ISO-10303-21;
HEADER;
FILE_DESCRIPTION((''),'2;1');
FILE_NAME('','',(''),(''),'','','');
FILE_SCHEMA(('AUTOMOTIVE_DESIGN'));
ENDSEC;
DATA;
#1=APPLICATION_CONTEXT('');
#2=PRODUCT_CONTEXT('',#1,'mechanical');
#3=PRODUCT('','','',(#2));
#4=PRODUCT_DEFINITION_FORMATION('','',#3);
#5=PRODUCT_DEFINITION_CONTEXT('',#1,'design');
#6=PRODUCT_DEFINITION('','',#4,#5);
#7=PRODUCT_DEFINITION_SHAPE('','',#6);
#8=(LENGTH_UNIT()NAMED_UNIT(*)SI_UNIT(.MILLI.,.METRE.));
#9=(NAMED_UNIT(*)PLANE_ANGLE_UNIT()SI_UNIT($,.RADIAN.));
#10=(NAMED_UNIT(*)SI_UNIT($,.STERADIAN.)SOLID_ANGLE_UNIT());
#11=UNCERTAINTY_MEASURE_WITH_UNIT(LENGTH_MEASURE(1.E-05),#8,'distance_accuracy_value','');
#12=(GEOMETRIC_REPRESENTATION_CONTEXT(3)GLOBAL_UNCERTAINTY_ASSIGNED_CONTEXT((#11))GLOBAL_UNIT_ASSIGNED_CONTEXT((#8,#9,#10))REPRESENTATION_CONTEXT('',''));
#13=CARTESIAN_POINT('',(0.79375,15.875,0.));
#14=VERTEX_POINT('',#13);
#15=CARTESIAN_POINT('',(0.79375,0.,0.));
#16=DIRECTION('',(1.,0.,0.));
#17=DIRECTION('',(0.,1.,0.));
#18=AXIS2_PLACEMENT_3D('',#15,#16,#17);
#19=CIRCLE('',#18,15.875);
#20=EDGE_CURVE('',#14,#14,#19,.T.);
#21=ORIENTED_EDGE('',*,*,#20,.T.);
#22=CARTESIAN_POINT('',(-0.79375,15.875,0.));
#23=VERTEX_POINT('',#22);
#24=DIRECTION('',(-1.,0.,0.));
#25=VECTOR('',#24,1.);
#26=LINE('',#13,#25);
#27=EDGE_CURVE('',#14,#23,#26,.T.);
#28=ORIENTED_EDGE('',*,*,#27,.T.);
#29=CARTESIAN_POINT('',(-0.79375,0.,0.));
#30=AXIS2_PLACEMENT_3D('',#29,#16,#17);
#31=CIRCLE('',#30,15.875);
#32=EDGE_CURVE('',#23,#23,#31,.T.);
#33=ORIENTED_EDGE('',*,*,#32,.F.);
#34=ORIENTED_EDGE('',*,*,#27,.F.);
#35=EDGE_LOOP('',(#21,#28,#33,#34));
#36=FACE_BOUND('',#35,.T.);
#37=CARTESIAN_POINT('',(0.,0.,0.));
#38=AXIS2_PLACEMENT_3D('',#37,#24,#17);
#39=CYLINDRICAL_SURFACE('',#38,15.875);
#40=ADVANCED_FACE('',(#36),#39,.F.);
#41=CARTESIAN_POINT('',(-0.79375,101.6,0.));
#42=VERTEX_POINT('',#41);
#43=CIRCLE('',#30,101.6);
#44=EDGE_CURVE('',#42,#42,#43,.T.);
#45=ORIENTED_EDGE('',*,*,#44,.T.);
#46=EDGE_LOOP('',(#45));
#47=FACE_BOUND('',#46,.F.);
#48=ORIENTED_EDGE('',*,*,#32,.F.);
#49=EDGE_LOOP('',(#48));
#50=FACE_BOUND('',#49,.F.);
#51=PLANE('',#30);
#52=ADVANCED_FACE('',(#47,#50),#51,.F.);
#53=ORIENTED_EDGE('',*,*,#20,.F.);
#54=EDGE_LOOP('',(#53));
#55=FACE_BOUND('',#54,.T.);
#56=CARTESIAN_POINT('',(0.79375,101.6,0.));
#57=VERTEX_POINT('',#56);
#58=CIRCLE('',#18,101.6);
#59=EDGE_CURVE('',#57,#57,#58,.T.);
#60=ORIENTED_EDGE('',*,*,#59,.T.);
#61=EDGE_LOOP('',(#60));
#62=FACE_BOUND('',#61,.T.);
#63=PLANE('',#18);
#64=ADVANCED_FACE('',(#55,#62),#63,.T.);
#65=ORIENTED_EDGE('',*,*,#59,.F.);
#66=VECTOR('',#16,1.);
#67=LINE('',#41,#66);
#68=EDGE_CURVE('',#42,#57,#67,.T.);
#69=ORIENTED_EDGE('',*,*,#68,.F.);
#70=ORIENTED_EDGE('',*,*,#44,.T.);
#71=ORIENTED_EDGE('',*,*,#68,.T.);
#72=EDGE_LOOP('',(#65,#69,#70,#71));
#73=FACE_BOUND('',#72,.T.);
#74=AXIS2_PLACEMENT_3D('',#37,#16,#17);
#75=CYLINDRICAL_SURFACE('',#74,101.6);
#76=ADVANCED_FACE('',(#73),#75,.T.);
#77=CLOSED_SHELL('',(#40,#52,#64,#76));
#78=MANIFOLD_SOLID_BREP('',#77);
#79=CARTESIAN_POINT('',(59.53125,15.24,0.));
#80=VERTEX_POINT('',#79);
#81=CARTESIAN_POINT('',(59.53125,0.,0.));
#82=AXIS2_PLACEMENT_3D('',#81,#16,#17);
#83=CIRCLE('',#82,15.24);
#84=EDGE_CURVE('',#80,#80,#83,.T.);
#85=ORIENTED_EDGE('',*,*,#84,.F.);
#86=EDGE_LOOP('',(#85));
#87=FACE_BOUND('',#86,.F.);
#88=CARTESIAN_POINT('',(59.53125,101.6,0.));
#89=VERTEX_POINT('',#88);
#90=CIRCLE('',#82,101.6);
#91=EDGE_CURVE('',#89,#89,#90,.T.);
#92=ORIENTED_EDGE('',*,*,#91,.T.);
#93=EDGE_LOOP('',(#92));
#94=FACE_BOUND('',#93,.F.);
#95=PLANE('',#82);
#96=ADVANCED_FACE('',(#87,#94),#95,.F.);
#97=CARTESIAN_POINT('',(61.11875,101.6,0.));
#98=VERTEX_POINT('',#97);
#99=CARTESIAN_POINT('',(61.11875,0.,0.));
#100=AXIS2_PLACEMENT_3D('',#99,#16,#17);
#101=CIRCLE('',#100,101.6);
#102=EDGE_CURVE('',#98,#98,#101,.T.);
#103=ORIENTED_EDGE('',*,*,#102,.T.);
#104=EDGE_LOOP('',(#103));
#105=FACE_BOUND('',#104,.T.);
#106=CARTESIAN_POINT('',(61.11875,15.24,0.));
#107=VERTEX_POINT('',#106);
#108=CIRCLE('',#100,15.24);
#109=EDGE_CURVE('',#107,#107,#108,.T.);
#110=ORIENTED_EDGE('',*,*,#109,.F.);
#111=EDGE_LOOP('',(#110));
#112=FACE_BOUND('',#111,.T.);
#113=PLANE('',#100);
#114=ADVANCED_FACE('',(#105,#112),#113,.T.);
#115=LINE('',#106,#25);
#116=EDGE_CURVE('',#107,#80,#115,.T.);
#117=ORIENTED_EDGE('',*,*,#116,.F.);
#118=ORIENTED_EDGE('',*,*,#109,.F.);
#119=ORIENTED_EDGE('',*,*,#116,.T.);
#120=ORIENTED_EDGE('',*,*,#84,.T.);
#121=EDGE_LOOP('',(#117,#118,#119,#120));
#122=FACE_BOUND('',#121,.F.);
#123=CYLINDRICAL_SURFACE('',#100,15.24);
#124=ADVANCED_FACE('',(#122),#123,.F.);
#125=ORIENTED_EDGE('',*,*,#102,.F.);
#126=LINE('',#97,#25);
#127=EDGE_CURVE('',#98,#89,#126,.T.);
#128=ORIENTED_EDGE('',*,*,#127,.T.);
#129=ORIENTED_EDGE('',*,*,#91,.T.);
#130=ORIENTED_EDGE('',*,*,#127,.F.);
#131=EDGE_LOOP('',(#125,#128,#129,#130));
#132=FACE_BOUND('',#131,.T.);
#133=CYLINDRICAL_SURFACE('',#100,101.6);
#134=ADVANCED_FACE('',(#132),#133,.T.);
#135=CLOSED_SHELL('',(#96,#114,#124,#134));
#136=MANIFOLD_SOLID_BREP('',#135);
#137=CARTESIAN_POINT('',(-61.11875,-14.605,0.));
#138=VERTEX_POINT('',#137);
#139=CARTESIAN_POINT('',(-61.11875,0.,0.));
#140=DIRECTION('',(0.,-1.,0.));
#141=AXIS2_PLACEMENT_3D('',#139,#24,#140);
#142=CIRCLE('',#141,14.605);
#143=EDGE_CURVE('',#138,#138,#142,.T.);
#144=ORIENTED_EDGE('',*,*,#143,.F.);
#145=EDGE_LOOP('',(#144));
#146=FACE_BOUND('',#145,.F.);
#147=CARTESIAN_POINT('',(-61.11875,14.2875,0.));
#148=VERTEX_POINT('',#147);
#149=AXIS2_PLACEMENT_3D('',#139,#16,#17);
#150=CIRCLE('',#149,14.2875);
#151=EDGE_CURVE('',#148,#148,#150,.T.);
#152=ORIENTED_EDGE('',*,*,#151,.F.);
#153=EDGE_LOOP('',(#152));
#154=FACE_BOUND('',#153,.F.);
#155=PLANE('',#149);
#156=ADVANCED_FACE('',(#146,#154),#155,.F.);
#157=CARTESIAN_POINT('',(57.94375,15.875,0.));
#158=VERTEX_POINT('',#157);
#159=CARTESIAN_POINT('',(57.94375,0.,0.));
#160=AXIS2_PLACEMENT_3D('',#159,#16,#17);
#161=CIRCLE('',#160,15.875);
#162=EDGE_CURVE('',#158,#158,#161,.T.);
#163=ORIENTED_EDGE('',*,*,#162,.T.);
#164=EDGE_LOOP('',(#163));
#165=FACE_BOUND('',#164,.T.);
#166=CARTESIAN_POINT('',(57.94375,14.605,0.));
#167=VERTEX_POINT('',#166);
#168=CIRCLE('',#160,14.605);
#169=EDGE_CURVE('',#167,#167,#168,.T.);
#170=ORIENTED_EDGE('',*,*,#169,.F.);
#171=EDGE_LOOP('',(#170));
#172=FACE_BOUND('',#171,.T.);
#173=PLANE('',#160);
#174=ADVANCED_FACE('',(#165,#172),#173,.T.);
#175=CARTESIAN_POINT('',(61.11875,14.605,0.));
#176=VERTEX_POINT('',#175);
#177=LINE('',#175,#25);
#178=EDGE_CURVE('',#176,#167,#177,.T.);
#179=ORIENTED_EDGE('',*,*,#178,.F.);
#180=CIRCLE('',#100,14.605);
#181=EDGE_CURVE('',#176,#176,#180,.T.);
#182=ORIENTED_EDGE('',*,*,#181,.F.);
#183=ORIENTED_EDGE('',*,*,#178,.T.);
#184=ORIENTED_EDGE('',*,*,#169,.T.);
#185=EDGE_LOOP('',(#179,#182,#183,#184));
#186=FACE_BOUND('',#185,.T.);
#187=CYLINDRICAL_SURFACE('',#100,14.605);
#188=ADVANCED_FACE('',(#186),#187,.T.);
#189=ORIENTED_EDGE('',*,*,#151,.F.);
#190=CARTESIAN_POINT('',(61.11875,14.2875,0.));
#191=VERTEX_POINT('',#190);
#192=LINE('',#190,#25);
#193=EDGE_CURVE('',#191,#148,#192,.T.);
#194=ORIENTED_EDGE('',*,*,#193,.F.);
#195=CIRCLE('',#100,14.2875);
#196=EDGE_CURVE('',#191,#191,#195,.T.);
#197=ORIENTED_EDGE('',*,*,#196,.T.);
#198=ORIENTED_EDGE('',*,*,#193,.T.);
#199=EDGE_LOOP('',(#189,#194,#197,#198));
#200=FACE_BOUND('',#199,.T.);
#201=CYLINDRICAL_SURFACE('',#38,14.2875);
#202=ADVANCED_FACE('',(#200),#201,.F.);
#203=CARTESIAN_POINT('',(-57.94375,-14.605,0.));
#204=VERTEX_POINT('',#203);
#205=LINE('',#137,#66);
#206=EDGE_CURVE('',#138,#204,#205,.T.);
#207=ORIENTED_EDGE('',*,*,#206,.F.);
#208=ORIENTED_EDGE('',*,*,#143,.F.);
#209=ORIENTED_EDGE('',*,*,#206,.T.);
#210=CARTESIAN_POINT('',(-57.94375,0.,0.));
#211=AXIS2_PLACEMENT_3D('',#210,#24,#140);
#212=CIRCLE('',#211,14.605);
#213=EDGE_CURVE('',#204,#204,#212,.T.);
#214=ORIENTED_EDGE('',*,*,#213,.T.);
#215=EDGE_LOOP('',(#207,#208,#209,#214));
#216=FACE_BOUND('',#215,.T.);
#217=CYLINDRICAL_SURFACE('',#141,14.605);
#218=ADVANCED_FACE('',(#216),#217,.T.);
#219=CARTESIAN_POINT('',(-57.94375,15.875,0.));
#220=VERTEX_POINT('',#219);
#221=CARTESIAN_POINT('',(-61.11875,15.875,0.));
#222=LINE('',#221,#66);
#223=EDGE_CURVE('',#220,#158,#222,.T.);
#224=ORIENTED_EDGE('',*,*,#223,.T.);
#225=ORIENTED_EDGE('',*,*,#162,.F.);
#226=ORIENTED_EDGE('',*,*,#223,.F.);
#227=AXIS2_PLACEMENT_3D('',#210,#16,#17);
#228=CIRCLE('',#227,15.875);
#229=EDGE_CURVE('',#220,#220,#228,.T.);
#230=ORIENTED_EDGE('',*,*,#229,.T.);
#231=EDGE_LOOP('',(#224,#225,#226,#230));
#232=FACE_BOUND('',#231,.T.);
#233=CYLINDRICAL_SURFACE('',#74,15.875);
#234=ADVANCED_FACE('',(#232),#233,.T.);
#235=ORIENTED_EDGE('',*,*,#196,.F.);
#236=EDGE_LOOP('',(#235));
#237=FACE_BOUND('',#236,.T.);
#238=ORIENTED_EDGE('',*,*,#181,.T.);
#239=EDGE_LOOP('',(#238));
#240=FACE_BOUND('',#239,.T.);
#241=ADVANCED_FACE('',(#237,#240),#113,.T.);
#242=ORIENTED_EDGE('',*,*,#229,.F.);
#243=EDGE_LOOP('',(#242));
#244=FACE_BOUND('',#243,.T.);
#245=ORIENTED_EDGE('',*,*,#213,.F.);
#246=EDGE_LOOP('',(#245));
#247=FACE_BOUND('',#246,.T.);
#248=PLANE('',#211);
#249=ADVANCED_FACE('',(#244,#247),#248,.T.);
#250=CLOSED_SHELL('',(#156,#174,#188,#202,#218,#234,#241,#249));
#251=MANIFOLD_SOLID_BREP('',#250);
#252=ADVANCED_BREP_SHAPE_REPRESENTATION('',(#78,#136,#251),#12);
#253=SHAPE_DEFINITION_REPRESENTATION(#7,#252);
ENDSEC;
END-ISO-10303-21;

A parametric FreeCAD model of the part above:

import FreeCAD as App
import Part
import Sketcher
Q = App.Units.Quantity

doc = App.newDocument("Part")
body = doc.addObject("PartDesign::Body", "Body")

# Sketch on YZ plane
sketch1 = doc.addObject("Sketcher::SketchObject", "Sketch")
body.addObject(sketch1)
sketch1.AttachmentSupport = (doc.YZ_Plane, [""])
sketch1.MapMode = "FlatFace"
sketch1.addGeometry(Part.Circle(App.Vector(0, 0, 0), App.Vector(0, 0, 1), 15.875), False)
sketch1.addGeometry(Part.Circle(App.Vector(0, 0, 0), App.Vector(0, 0, 1), 14.2875), False)
sketch1.addConstraint(Sketcher.Constraint("Coincident", 0, 3, -1, 1))
sketch1.addConstraint(Sketcher.Constraint("Coincident", 1, 3, -1, 1))
sketch1.addConstraint(Sketcher.Constraint("Diameter", 0, Q("1.25 in")))
sketch1.addConstraint(Sketcher.Constraint("Diameter", 1, Q("1.125 in")))
pad1 = doc.addObject("PartDesign::Pad", "Pad")
body.addObject(pad1)
pad1.Profile = sketch1
pad1.Length = Q("4.8125 in")
pad1.Midplane = True

# Sketch on YZ plane
sketch2 = doc.addObject("Sketcher::SketchObject", "Sketch001")
body.addObject(sketch2)
sketch2.AttachmentSupport = (doc.YZ_Plane, [""])
sketch2.MapMode = "FlatFace"
sketch2.AttachmentOffset = App.Placement(App.Vector(0, 0, 2.40625 * 25.4), App.Rotation())
sketch2.addGeometry(Part.Circle(App.Vector(0, 0, 0), App.Vector(0, 0, 1), 15.875), False)
sketch2.addGeometry(Part.Circle(App.Vector(0, 0, 0), App.Vector(0, 0, 1), 14.605), False)
sketch2.addConstraint(Sketcher.Constraint("Coincident", 0, 3, -1, 1))
sketch2.addConstraint(Sketcher.Constraint("Coincident", 1, 3, -1, 1))
sketch2.addConstraint(Sketcher.Constraint("Diameter", 0, Q("1.25 in")))
sketch2.addConstraint(Sketcher.Constraint("Diameter", 1, Q("1.15 in")))
pocket1 = doc.addObject("PartDesign::Pocket", "Pocket")
body.addObject(pocket1)
pocket1.Profile = sketch2
pocket1.Length = Q("0.125 in")

# Sketch on YZ plane
sketch3 = doc.addObject("Sketcher::SketchObject", "Sketch002")
body.addObject(sketch3)
sketch3.AttachmentSupport = (doc.YZ_Plane, [""])
sketch3.MapMode = "FlatFace"
sketch3.AttachmentOffset = App.Placement(App.Vector(0, 0, -2.40625 * 25.4), App.Rotation())
sketch3.addGeometry(Part.Circle(App.Vector(0, 0, 0), App.Vector(0, 0, 1), 15.875), False)
sketch3.addGeometry(Part.Circle(App.Vector(0, 0, 0), App.Vector(0, 0, 1), 14.605), False)
sketch3.addConstraint(Sketcher.Constraint("Coincident", 0, 3, -1, 1))
sketch3.addConstraint(Sketcher.Constraint("Coincident", 1, 3, -1, 1))
sketch3.addConstraint(Sketcher.Constraint("Diameter", 0, Q("1.25 in")))
sketch3.addConstraint(Sketcher.Constraint("Diameter", 1, Q("1.15 in")))
pocket2 = doc.addObject("PartDesign::Pocket", "Pocket001")
body.addObject(pocket2)
pocket2.Profile = sketch3
pocket2.Length = Q("0.125 in")
pocket2.Reversed = True
body2 = doc.addObject("PartDesign::Body", "Body001")

# Sketch on YZ plane
sketch4 = doc.addObject("Sketcher::SketchObject", "Sketch003")
body2.addObject(sketch4)
sketch4.AttachmentSupport = (doc.getObject("YZ_Plane001"), [""])
sketch4.MapMode = "FlatFace"
sketch4.AttachmentOffset = App.Placement(App.Vector(0, 0, 2.40625 * 25.4), App.Rotation())
sketch4.addGeometry(Part.Circle(App.Vector(0, 0, 0), App.Vector(0, 0, 1), 101.6), False)
sketch4.addGeometry(Part.Circle(App.Vector(0, 0, 0), App.Vector(0, 0, 1), 15.24), False)
sketch4.addConstraint(Sketcher.Constraint("Coincident", 0, 3, -1, 1))
sketch4.addConstraint(Sketcher.Constraint("Coincident", 1, 3, -1, 1))
sketch4.addConstraint(Sketcher.Constraint("Diameter", 0, Q("8 in")))
sketch4.addConstraint(Sketcher.Constraint("Diameter", 1, Q("1.2 in")))
pad2 = doc.addObject("PartDesign::Pad", "Pad001")
body2.addObject(pad2)
pad2.Profile = sketch4
pad2.Length = Q("0.0625 in")
pad2.Reversed = True
body3 = doc.addObject("PartDesign::Body", "Body002")

# Sketch on YZ plane
sketch5 = doc.addObject("Sketcher::SketchObject", "Sketch004")
body3.addObject(sketch5)
sketch5.AttachmentSupport = (doc.getObject("YZ_Plane002"), [""])
sketch5.MapMode = "FlatFace"
sketch5.addGeometry(Part.Circle(App.Vector(0, 0, 0), App.Vector(0, 0, 1), 101.6), False)
sketch5.addGeometry(Part.Circle(App.Vector(0, 0, 0), App.Vector(0, 0, 1), 15.875), False)
sketch5.addConstraint(Sketcher.Constraint("Coincident", 0, 3, -1, 1))
sketch5.addConstraint(Sketcher.Constraint("Coincident", 1, 3, -1, 1))
sketch5.addConstraint(Sketcher.Constraint("Diameter", 0, Q("8 in")))
sketch5.addConstraint(Sketcher.Constraint("Diameter", 1, Q("1.25 in")))
pad3 = doc.addObject("PartDesign::Pad", "Pad002")
body3.addObject(pad3)
pad3.Profile = sketch5
pad3.Length = Q("0.0625 in")
pad3.Midplane = True

doc.recompute()
